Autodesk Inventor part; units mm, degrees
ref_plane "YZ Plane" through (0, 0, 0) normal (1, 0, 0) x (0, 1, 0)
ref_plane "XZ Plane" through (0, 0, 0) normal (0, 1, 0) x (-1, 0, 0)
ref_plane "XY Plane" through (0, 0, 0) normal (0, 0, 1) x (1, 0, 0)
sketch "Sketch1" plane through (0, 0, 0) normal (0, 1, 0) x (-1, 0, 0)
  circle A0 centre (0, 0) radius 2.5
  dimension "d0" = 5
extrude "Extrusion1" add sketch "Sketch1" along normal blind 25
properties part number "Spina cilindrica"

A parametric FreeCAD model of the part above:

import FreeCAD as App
import Part
import Sketcher
from FreeCAD import Vector

doc = App.newDocument("Part")
params = doc.addObject("Spreadsheet::Sheet", "Params")
for row, (alias, value) in enumerate([
    ("sketch1_diameter", "5 mm"),
    ("pad1_length", "25 mm"),
], start=1):
    params.set(f"A{row}", alias)
    params.set(f"B{row}", "=" + value)
    params.setAlias(f"B{row}", alias)

body = doc.addObject("PartDesign::Body", "Body")

# Sketch on XZ plane
sketch1 = body.newObject("Sketcher::SketchObject", "Sketch")
sketch1.AttachmentSupport = (doc.getObject("XZ_Plane"), [""])
sketch1.MapMode = "FlatFace"
sketch1.addGeometry(Part.Circle(Vector(0, 0, 0), Vector(0, 0, 1), 2.5), False)
sketch1.addConstraint(Sketcher.Constraint("Coincident", 0, 3, -1, 1))
sketch1.addConstraint(Sketcher.Constraint("Diameter", 0, 5.0))
sketch1.setExpression("Constraints[1]", "Params.sketch1_diameter")
pad1 = body.newObject("PartDesign::Pad", "Pad")
pad1.Profile = sketch1
pad1.setExpression("Length", "Params.pad1_length")
pad1.Reversed = True

doc.recompute()
